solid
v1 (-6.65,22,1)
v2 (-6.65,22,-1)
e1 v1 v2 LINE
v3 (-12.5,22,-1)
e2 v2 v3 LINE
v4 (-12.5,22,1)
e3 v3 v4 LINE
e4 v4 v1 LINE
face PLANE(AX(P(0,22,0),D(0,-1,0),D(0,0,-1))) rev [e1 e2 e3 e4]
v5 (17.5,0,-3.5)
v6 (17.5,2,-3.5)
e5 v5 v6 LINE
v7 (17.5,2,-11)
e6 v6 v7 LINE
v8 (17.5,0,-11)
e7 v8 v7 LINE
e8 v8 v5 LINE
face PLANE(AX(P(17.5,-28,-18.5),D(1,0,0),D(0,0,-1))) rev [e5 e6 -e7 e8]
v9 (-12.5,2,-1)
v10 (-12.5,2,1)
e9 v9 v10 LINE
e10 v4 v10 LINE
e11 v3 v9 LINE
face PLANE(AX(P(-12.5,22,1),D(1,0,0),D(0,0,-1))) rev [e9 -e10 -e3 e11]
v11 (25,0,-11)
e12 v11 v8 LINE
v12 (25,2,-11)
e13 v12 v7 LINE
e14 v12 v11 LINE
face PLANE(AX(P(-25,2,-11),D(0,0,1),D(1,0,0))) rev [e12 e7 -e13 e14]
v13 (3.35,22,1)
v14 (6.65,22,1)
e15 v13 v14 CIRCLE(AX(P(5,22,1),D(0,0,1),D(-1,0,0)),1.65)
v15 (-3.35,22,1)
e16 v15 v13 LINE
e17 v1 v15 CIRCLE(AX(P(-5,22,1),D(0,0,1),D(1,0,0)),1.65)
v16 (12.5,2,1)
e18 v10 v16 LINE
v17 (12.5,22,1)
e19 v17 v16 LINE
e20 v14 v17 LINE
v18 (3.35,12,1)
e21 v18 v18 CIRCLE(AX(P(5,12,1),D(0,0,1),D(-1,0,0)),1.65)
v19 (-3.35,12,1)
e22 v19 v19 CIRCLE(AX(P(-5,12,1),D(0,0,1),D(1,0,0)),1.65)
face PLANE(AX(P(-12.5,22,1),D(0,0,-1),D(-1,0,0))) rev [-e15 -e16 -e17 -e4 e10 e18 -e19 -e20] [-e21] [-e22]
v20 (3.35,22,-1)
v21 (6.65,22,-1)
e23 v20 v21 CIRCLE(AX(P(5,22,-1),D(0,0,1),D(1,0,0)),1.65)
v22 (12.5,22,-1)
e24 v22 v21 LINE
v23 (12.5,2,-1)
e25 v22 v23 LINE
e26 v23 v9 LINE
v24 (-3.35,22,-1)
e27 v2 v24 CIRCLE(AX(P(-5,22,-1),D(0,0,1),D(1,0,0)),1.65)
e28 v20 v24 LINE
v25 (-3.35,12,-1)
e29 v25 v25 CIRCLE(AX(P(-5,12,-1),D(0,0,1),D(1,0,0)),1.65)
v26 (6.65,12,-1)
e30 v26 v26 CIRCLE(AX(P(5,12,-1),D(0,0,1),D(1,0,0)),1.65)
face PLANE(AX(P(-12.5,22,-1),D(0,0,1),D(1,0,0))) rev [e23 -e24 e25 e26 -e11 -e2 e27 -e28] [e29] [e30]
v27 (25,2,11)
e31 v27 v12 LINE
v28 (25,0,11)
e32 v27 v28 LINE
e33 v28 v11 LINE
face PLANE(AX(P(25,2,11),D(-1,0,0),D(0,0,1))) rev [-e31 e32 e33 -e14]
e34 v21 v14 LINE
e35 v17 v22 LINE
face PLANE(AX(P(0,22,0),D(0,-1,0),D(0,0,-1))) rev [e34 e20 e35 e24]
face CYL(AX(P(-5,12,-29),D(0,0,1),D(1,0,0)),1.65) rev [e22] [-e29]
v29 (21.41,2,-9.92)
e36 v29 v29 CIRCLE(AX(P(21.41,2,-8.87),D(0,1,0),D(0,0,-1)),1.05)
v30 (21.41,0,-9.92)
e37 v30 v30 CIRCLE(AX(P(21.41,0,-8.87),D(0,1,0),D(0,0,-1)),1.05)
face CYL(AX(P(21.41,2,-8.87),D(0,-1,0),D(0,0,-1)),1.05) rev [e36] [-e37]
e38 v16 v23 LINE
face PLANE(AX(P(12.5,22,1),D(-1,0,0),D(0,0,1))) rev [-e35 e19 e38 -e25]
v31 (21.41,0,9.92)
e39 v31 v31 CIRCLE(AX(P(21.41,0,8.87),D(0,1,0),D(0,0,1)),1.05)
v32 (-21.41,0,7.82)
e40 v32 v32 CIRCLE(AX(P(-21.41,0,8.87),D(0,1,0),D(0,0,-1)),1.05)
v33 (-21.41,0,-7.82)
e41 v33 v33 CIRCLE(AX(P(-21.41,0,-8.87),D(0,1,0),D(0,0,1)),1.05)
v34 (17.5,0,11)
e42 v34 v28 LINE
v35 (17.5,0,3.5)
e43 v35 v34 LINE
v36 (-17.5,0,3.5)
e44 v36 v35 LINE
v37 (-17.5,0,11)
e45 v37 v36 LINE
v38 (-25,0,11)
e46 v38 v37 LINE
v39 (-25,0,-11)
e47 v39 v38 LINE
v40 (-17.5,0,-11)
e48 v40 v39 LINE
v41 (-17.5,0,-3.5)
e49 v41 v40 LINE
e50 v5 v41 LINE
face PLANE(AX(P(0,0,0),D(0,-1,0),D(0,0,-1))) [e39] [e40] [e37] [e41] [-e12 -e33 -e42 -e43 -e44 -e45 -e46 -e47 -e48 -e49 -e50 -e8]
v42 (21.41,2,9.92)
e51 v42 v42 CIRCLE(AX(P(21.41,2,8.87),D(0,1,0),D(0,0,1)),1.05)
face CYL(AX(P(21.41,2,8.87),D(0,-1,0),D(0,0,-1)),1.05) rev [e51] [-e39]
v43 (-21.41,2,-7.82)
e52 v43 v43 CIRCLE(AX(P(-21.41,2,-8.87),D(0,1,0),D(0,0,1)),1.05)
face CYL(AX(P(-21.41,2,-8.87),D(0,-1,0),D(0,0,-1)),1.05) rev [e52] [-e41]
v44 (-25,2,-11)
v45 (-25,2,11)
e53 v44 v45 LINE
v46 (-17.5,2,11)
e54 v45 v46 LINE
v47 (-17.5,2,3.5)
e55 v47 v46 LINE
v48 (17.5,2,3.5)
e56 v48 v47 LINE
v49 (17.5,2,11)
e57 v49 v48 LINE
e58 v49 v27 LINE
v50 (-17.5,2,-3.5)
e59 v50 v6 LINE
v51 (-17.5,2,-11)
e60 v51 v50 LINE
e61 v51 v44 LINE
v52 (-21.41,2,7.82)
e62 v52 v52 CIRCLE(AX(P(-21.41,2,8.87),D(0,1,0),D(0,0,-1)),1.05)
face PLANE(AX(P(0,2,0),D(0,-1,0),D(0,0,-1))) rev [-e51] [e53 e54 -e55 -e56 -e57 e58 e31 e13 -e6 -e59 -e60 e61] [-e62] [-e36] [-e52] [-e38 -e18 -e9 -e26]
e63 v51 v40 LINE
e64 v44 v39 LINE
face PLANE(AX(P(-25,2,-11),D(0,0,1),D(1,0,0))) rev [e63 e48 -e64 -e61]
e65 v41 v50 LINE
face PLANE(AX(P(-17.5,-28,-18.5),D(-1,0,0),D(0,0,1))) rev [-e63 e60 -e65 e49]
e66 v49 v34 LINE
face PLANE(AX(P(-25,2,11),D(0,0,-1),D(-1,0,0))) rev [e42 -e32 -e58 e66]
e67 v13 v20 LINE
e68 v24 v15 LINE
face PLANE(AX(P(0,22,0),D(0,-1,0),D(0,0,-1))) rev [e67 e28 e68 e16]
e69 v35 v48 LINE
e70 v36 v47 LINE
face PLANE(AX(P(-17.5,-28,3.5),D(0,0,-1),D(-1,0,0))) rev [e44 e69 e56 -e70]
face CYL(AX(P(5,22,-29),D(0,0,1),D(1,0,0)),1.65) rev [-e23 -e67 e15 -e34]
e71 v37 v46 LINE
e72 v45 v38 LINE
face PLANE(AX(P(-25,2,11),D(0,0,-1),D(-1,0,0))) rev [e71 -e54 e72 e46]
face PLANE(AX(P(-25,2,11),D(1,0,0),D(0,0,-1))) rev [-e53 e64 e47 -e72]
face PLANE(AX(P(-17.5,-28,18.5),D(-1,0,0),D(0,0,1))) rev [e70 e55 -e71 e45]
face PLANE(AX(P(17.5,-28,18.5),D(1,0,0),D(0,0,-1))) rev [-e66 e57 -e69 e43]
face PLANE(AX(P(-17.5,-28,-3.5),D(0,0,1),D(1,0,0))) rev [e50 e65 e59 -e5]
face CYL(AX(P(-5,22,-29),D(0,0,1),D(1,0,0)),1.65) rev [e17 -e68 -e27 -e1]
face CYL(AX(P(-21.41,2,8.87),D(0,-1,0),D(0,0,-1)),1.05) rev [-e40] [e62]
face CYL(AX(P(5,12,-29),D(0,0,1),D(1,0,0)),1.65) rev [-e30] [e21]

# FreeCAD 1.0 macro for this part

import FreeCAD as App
import Part
import Sketcher
Q = App.Units.Quantity


def add_polygon(sketch, points):
    """Adds a closed chain of lines whose ends are joined by coincident constraints."""
    first, n = sketch.GeometryCount, len(points)
    for a, b in zip(points, points[1:] + points[:1]):
        sketch.addGeometry(Part.LineSegment(App.Vector(*a, 0), App.Vector(*b, 0)), False)
    for i in range(n):
        sketch.addConstraint(Sketcher.Constraint("Coincident", first + i, 2, first + (i + 1) % n, 1))

doc = App.newDocument("Part")
body = doc.addObject("PartDesign::Body", "Body")

# Sketch on XZ plane
sketch1 = body.newObject("Sketcher::SketchObject", "Sketch")
sketch1.AttachmentSupport = (doc.getObject("XZ_Plane"), [""])
sketch1.MapMode = "FlatFace"
add_polygon(sketch1, [(-25, -11), (-25, 11), (25, 11), (25, -11)])  # lines 0-3
sketch1.addGeometry(Part.Circle(App.Vector(-21.41, 8.87, 0), App.Vector(0, 0, 1), 1.05), False)  # 4
sketch1.addGeometry(Part.Circle(App.Vector(21.41, 8.87, 0), App.Vector(0, 0, 1), 1.05), False)  # 5
sketch1.addGeometry(Part.Circle(App.Vector(-21.41, -8.87, 0), App.Vector(0, 0, 1), 1.05), False)  # 6
sketch1.addGeometry(Part.Circle(App.Vector(21.41, -8.87, 0), App.Vector(0, 0, 1), 1.05), False)  # 7
sketch1.addConstraint([
    Sketcher.Constraint("Vertical", 0),
    Sketcher.Constraint("Horizontal", 1),
    Sketcher.Constraint("Vertical", 2),
    Sketcher.Constraint("Horizontal", 3),
    Sketcher.Constraint("Equal", 4, 5),
    Sketcher.Constraint("Equal", 5, 6),
    Sketcher.Constraint("Equal", 6, 7),
    Sketcher.Constraint("Symmetric", 5, 3, 6, 3, -1, 1),
    Sketcher.Constraint("Symmetric", 4, 3, 7, 3, -1, 1),
    Sketcher.Constraint("Symmetric", 0, 2, 2, 2, -1, 1),
    Sketcher.Constraint("Symmetric", 4, 3, 5, 3, -2),
    Sketcher.Constraint("Diameter", 4, Q("2.1 mm")),
    Sketcher.Constraint("DistanceX", 1, 1, 1, 2, Q("50 mm")),
    Sketcher.Constraint("DistanceY", 0, 1, 0, 2, Q("22 mm")),
    Sketcher.Constraint("DistanceX", 4, 3, -1, 1, Q("21.41 mm")),
    Sketcher.Constraint("DistanceY", -1, 1, 4, 3, Q("8.87 mm")),
])
pad1 = body.newObject("PartDesign::Pad", "Pad")
pad1.Profile = sketch1
pad1.Length = 2
pad1.Reversed = True

# Sketch on XZ plane
sketch2 = body.newObject("Sketcher::SketchObject", "Sketch001")
sketch2.AttachmentSupport = (doc.getObject("XZ_Plane"), [""])
sketch2.MapMode = "FlatFace"
sketch2.AttachmentOffset = App.Placement(App.Vector(0, 0, -2), App.Rotation())
add_polygon(sketch2, [(-12.5, -1), (-12.5, 1), (12.5, 1), (12.5, -1)])  # lines 0-3
sketch2.addConstraint([
    Sketcher.Constraint("Vertical", 0),
    Sketcher.Constraint("Horizontal", 1),
    Sketcher.Constraint("Vertical", 2),
    Sketcher.Constraint("Horizontal", 3),
    Sketcher.Constraint("Symmetric", 0, 2, 2, 2, -1, 1),
    Sketcher.Constraint("DistanceX", 1, 1, 1, 2, Q("25 mm")),
    Sketcher.Constraint("DistanceY", 0, 1, 0, 2, Q("2 mm")),
])
pad2 = body.newObject("PartDesign::Pad", "Pad001")
pad2.Profile = sketch2
pad2.Length = 20
pad2.Reversed = True

# Sketch on XY plane
sketch3 = body.newObject("Sketcher::SketchObject", "Sketch002")
sketch3.AttachmentSupport = (doc.getObject("XY_Plane"), [""])
sketch3.MapMode = "FlatFace"
sketch3.AttachmentOffset = App.Placement(App.Vector(0, 0, 1), App.Rotation())
sketch3.addGeometry([
    Part.Circle(App.Vector(-5, 22, 0), App.Vector(0, 0, 1), 1.65),
    Part.Circle(App.Vector(-5, 12, 0), App.Vector(0, 0, 1), 1.65),
    Part.Circle(App.Vector(5, 12, 0), App.Vector(0, 0, 1), 1.65),
    Part.Circle(App.Vector(5, 22, 0), App.Vector(0, 0, 1), 1.65),
], False)
sketch3.addConstraint([
    Sketcher.Constraint("Equal", 0, 1),
    Sketcher.Constraint("Equal", 1, 2),
    Sketcher.Constraint("Equal", 2, 3),
    Sketcher.Constraint("Symmetric", 1, 3, 2, 3, -2),
    Sketcher.Constraint("Symmetric", 0, 3, 3, 3, -2),
    Sketcher.Constraint("Vertical", 0, 3, 1, 3),
    Sketcher.Constraint("Diameter", 0, Q("3.3 mm")),
    Sketcher.Constraint("DistanceX", 0, 3, -1, 1, Q("5 mm")),
    Sketcher.Constraint("DistanceY", -1, 1, 0, 3, Q("22 mm")),
    Sketcher.Constraint("DistanceY", -1, 1, 1, 3, Q("12 mm")),
])
pocket1 = body.newObject("PartDesign::Pocket", "Pocket")
pocket1.Profile = sketch3
pocket1.Length = 30

# Sketch on XZ plane
sketch4 = body.newObject("Sketcher::SketchObject", "Sketch003")
sketch4.AttachmentSupport = (doc.getObject("XZ_Plane"), [""])
sketch4.MapMode = "FlatFace"
sketch4.AttachmentOffset = App.Placement(App.Vector(0, 0, -2), App.Rotation())
add_polygon(sketch4, [(-17.5, 3.5), (-17.5, 18.5), (17.5, 18.5), (17.5, 3.5)])  # lines 0-3
add_polygon(sketch4, [(-17.5, -18.5), (-17.5, -3.5), (17.5, -3.5), (17.5, -18.5)])  # lines 4-7
sketch4.addConstraint([
    Sketcher.Constraint("Vertical", 0),
    Sketcher.Constraint("Horizontal", 1),
    Sketcher.Constraint("Vertical", 2),
    Sketcher.Constraint("Horizontal", 3),
    Sketcher.Constraint("Vertical", 4),
    Sketcher.Constraint("Horizontal", 5),
    Sketcher.Constraint("Vertical", 6),
    Sketcher.Constraint("Horizontal", 7),
    Sketcher.Constraint("Symmetric", 2, 2, 4, 2, -1, 1),
    Sketcher.Constraint("Symmetric", 0, 2, 6, 2, -1, 1),
    Sketcher.Constraint("Vertical", 3, 2, 4, 2),
    Sketcher.Constraint("DistanceX", 1, 1, 1, 2, Q("35 mm")),
    Sketcher.Constraint("DistanceY", 0, 1, 0, 2, Q("15 mm")),
    Sketcher.Constraint("DistanceY", 4, 2, 3, 2, Q("7 mm")),
])
pocket2 = body.newObject("PartDesign::Pocket", "Pocket001")
pocket2.Profile = sketch4
pocket2.Length = 30
pocket2.Reversed = True

doc.recompute()
